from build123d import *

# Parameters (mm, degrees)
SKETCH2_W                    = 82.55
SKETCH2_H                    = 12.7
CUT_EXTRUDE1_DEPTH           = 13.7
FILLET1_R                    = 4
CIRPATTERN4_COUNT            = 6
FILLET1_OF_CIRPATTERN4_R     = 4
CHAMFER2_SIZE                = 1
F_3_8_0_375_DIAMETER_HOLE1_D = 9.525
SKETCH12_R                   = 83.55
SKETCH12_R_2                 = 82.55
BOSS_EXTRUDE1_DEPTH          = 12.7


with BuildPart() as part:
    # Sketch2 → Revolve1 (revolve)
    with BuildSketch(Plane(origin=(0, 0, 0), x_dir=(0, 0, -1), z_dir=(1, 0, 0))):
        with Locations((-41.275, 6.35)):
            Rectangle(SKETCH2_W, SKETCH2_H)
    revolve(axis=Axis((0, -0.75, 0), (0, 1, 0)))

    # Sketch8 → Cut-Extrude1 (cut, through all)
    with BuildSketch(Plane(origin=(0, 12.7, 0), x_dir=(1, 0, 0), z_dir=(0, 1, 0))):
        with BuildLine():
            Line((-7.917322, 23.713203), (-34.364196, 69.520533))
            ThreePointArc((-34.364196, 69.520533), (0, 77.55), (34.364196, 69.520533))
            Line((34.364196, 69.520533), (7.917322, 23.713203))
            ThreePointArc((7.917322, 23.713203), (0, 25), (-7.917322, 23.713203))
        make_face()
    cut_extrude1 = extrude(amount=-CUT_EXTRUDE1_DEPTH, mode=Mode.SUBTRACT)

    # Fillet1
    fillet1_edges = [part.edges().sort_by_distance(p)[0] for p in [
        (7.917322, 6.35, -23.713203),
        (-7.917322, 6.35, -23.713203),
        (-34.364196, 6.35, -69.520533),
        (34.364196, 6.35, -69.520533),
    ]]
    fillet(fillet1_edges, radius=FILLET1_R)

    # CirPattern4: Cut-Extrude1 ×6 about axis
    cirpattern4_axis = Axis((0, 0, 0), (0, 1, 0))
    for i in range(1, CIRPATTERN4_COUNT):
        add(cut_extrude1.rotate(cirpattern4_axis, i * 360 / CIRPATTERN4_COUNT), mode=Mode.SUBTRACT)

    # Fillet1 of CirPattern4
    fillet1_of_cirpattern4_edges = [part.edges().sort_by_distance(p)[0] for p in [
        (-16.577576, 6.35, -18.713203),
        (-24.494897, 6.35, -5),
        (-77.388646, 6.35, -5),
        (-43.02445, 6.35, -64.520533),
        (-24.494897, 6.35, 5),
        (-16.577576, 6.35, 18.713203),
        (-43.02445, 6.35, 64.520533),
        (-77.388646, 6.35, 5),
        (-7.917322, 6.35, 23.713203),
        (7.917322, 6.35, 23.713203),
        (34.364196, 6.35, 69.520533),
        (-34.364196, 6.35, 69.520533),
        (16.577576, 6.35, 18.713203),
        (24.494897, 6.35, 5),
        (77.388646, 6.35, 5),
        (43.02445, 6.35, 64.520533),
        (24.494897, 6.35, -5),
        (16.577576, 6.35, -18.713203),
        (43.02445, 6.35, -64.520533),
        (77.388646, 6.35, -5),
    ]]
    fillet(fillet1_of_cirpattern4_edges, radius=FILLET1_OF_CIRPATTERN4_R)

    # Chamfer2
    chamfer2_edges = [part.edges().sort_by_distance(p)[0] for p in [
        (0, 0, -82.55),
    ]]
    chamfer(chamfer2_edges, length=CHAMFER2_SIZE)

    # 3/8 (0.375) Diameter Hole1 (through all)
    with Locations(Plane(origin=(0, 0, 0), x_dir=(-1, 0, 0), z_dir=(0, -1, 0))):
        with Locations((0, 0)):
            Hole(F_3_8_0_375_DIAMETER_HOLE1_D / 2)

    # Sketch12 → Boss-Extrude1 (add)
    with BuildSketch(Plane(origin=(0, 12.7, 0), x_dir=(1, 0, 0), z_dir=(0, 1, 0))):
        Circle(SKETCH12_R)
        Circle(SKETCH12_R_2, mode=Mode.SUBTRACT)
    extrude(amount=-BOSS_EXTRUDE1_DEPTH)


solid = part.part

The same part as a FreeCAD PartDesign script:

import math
import FreeCAD as App
import Part
import Sketcher
from FreeCAD import Vector
Q = App.Units.Quantity


def edges_at(feature, points):
    """Names of the edges that pass closest to the given points."""
    edges = feature.Shape.Edges
    near = lambda p: min(range(len(edges)), key=lambda i: edges[i].distToShape(Part.Vertex(*p))[0])
    return sorted({f"Edge{near(p) + 1}" for p in points})

doc = App.newDocument("Part")
body = doc.addObject("PartDesign::Body", "Body")

sketch1 = body.newObject("Sketcher::SketchObject", "Sketch")
sketch1.AttachmentSupport = (doc.getObject("YZ_Plane"), [""])
sketch1.MapMode = "FlatFace"
sketch1.addGeometry([
    Part.LineSegment(Vector(13, 83, 0), Vector(0, 83, 0)),
    Part.LineSegment(Vector(0, 83, 0), Vector(0, 0, 0)),
    Part.LineSegment(Vector(0, 0, 0), Vector(13, 0, 0)),
    Part.LineSegment(Vector(13, 0, 0), Vector(13, 83, 0)),
], False)
sketch1.addConstraint([
    Sketcher.Constraint("Coincident", 0, 2, 1, 1),
    Sketcher.Constraint("Coincident", 1, 2, 2, 1),
    Sketcher.Constraint("Coincident", 2, 2, 3, 1),
    Sketcher.Constraint("Coincident", 3, 2, 0, 1),
    Sketcher.Constraint("Horizontal", 0),
    Sketcher.Constraint("Vertical", 1),
    Sketcher.Constraint("Horizontal", 2),
    Sketcher.Constraint("Vertical", 3),
    Sketcher.Constraint("Coincident", 1, 2, -1, 1),
    Sketcher.Constraint("DistanceX", 0, 2, 0, 1, Q("12.7 mm")),
    Sketcher.Constraint("DistanceY", 1, 2, 1, 1, Q("82.55 mm")),
])
revolution = body.newObject("PartDesign::Revolution", "Revolution")
revolution.Profile = sketch1
revolution.ReferenceAxis = (sketch1, ["H_Axis"])
revolution.Angle = 360

sketch2 = body.newObject("Sketcher::SketchObject", "Sketch001")
sketch2.AttachmentSupport = (doc.getObject("XZ_Plane"), [""])
sketch2.MapMode = "FlatFace"
sketch2.AttachmentOffset = App.Placement(Vector(0, 0, -12.7), App.Rotation())
sketch2.addGeometry([
    Part.LineSegment(Vector(-34, -70, 0), Vector(-8, -24, 0)),
    Part.ArcOfCircle(Part.Circle(Vector(0, 0, 0), Vector(0, 0, 1), 25), math.radians(-108), math.radians(-72)),
    Part.LineSegment(Vector(8, -24, 0), Vector(34, -70, 0)),
    Part.ArcOfCircle(Part.Circle(Vector(0, 0, 0), Vector(0, 0, 1), 78), math.radians(-116), math.radians(-64)),
], False)
sketch2.addConstraint([
    Sketcher.Constraint("Coincident", 0, 2, 1, 1),
    Sketcher.Constraint("Coincident", 1, 2, 2, 1),
    Sketcher.Constraint("Coincident", 2, 2, 3, 2),
    Sketcher.Constraint("Coincident", 3, 1, 0, 1),
    Sketcher.Constraint("Coincident", 1, 3, -1, 1),
    Sketcher.Constraint("Coincident", 3, 3, -1, 1),
    Sketcher.Constraint("Horizontal", 0, 2, 1, 2),
    Sketcher.Constraint("Horizontal", 2, 2, 3, 1),
    Sketcher.Constraint("Angle", 0, Q("60 deg")),
    Sketcher.Constraint("Radius", 3, Q("77.549998 mm")),
    Sketcher.Constraint("Radius", 1, Q("24.999994 mm")),
    Sketcher.Constraint("DistanceY", 0, 2, 3, 3, Q("23.713201 mm")),
])
pocket1 = body.newObject("PartDesign::Pocket", "Pocket")
pocket1.Profile = sketch2
pocket1.Type = "ThroughAll"
pocket1.Reversed = True
doc.recompute()

fillet = body.newObject("PartDesign::Fillet", "Fillet")
fillet.Base = (pocket1, edges_at(pocket1, [
    (7.917, 6.35, -23.713),
    (-7.917, 6.35, -23.713),
    (-34.364, 6.35, -69.521),
    (34.364, 6.35, -69.521),
]))
fillet.Radius = 4
doc.recompute()

polarpattern = body.newObject("PartDesign::PolarPattern", "PolarPattern")
polarpattern.Originals = [pocket1]
polarpattern.Axis = (doc.getObject("Y_Axis"), [""])
polarpattern.Angle = 360
polarpattern.Occurrences = 6
body.Tip = polarpattern
doc.recompute()

fillet2 = body.newObject("PartDesign::Fillet", "Fillet001")
fillet2.Base = (polarpattern, edges_at(polarpattern, [
    (-16.578, 6.35, -18.713),
    (-24.495, 6.35, -5),
    (-77.389, 6.35, -5),
    (-43.024, 6.35, -64.521),
    (-24.495, 6.35, 5),
    (-16.578, 6.35, 18.713),
    (-43.024, 6.35, 64.521),
    (-77.389, 6.35, 5),
    (-7.917, 6.35, 23.713),
    (7.917, 6.35, 23.713),
    (34.364, 6.35, 69.521),
    (-34.364, 6.35, 69.521),
    (16.578, 6.35, 18.713),
    (24.495, 6.35, 5),
    (77.389, 6.35, 5),
    (43.024, 6.35, 64.521),
    (24.495, 6.35, -5),
    (16.578, 6.35, -18.713),
    (43.024, 6.35, -64.521),
    (77.389, 6.35, -5),
]))
fillet2.Radius = 4
doc.recompute()

chamfer = body.newObject("PartDesign::Chamfer", "Chamfer")
chamfer.Base = (fillet2, edges_at(fillet2, [(0, 0, -82.55)]))
chamfer.Size = 1

sketch3 = body.newObject("Sketcher::SketchObject", "Sketch002")
sketch3.AttachmentSupport = (doc.getObject("XZ_Plane"), [""])
sketch3.MapMode = "FlatFace"
sketch3.addGeometry(Part.Circle(Vector(0, 0, 0), Vector(0, 0, 1), 4.8), False)
sketch3.addConstraint([
    Sketcher.Constraint("Coincident", 0, 3, -1, 1),
    Sketcher.Constraint("Diameter", 0, Q("9.525 mm")),
])
doc.recompute()
hole = body.newObject("PartDesign::Hole", "Hole")
hole.Profile = sketch3
hole.ThreadType = "None"
hole.Diameter = 9.525
hole.DepthType = "ThroughAll"

sketch4 = body.newObject("Sketcher::SketchObject", "Sketch003")
sketch4.AttachmentSupport = (doc.getObject("XZ_Plane"), [""])
sketch4.MapMode = "FlatFace"
sketch4.AttachmentOffset = App.Placement(Vector(0, 0, -12.7), App.Rotation())
sketch4.addGeometry([
    Part.Circle(Vector(0, 0, 0), Vector(0, 0, 1), 84),
    Part.Circle(Vector(0, 0, 0), Vector(0, 0, 1), 83),
], False)
sketch4.addConstraint([
    Sketcher.Constraint("Coincident", 0, 3, -1, 1),
    Sketcher.Constraint("Coincident", 1, 3, -1, 1),
    Sketcher.Constraint("Diameter", 0, Q("167.1 mm")),
    Sketcher.Constraint("Diameter", 1, Q("165.1 mm")),
])
pad1 = body.newObject("PartDesign::Pad", "Pad")
pad1.Profile = sketch4
pad1.Length = 12.7

doc.recompute()
